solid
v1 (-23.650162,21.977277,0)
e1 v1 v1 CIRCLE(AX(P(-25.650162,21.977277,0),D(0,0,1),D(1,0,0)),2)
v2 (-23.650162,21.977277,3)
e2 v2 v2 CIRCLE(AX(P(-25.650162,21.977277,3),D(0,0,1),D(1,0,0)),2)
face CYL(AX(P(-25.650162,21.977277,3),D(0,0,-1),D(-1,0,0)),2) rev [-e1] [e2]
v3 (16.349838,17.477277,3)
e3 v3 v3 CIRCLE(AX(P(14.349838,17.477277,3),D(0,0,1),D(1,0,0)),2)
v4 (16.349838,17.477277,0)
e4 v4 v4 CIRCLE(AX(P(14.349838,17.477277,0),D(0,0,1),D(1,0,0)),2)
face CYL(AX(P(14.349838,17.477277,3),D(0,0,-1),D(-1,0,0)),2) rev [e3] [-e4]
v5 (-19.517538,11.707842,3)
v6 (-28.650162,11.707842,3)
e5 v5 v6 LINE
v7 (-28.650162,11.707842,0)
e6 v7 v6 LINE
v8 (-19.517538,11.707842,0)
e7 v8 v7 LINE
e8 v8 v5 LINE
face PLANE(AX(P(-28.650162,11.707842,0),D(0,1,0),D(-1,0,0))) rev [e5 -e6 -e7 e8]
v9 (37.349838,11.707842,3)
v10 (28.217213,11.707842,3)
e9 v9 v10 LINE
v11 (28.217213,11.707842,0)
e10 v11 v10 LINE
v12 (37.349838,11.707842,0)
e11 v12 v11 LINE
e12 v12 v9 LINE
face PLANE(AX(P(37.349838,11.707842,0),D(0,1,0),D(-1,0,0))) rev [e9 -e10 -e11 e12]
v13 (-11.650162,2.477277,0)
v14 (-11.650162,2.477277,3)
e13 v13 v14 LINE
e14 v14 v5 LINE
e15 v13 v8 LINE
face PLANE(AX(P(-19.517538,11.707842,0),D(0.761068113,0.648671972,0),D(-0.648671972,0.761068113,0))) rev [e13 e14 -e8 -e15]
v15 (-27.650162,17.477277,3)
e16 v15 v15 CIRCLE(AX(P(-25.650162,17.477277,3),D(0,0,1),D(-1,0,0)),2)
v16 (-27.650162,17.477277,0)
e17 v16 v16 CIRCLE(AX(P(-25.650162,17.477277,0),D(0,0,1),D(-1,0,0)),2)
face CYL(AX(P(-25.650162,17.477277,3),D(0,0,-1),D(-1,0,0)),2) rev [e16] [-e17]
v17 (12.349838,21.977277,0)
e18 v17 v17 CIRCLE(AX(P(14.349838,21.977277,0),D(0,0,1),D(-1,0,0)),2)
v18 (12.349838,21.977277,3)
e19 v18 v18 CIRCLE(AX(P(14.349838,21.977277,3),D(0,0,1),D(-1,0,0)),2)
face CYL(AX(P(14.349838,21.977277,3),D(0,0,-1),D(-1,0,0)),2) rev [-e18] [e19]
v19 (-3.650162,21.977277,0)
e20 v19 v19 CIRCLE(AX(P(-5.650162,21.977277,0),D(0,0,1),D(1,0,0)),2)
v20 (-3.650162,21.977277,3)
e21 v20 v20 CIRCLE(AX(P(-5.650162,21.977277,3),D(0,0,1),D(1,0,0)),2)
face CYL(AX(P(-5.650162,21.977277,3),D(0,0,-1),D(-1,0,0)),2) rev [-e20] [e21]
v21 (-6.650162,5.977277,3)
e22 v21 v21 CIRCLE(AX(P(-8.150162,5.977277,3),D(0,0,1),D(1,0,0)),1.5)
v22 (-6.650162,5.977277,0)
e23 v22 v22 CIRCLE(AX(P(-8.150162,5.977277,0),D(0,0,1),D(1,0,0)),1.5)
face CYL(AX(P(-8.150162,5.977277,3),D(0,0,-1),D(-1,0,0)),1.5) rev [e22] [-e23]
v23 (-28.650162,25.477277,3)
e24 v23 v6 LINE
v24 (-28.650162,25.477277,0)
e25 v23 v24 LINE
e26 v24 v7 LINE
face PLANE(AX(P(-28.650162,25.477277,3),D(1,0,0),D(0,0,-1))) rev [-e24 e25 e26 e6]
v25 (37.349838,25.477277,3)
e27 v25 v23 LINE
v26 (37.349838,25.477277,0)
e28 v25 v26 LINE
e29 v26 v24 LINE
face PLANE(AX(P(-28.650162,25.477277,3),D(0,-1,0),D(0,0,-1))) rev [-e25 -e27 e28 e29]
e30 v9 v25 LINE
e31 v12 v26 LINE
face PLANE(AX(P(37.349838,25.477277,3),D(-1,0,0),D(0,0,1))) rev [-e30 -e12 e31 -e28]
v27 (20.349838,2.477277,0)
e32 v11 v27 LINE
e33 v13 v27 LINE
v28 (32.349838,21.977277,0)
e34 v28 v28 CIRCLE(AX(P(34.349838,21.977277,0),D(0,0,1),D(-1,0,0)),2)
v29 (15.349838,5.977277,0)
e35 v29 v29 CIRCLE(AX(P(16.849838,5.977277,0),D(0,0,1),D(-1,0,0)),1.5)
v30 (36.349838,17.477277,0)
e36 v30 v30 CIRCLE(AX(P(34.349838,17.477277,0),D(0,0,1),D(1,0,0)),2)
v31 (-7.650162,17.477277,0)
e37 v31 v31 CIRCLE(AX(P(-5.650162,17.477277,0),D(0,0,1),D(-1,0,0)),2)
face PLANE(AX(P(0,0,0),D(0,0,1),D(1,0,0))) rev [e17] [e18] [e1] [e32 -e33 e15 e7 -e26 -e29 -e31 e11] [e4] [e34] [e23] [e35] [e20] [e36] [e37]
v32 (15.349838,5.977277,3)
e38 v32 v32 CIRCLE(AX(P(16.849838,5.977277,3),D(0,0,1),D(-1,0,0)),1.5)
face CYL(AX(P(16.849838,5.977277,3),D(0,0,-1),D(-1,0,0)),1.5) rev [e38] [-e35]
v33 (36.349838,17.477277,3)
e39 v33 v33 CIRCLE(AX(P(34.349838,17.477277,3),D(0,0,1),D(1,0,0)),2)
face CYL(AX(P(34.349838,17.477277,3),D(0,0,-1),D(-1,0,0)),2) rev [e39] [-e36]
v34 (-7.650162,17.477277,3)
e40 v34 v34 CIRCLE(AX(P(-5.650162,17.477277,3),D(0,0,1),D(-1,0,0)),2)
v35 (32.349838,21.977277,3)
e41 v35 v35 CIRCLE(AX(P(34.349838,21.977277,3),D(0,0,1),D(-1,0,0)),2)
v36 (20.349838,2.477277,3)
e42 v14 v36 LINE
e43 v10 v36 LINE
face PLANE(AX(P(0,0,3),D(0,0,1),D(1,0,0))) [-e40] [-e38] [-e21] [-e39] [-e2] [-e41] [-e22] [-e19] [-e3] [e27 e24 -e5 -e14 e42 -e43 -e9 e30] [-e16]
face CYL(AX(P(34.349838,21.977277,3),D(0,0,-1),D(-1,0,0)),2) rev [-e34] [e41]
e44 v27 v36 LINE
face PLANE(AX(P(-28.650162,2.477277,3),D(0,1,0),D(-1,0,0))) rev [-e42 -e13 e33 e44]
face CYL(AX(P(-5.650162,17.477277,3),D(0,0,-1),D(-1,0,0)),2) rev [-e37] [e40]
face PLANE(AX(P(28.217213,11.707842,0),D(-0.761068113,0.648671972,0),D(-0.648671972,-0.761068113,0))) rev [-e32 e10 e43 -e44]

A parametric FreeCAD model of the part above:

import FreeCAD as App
import Part
import Sketcher

V = App.Vector


def add_polygon(sketch, points):
    """Adds a closed chain of lines whose ends are joined by coincident constraints."""
    first, n = sketch.GeometryCount, len(points)
    for a, b in zip(points, points[1:] + points[:1]):
        sketch.addGeometry(Part.LineSegment(App.Vector(*a, 0), App.Vector(*b, 0)), False)
    for i in range(n):
        sketch.addConstraint(Sketcher.Constraint("Coincident", first + i, 2, first + (i + 1) % n, 1))

doc = App.newDocument("Part")
body = doc.addObject("PartDesign::Body", "Body")

# Sketch on XY plane
sketch1 = doc.addObject("Sketcher::SketchObject", "Sketch")
body.addObject(sketch1)
sketch1.AttachmentSupport = (doc.XY_Plane, [""])
sketch1.MapMode = "FlatFace"
add_polygon(sketch1, [(-28.650162, 25.477277), (-28.650162, 2.477277), (37.349838, 2.477277), (37.349838, 25.477277)])  # lines 0-3
sketch1.addGeometry(Part.Circle(V(-8.150162, 5.977277, 0), V(0, 0, 1), 1.5), False)  # 4
sketch1.addGeometry(Part.Circle(V(16.849838, 5.977277, 0), V(0, 0, 1), 1.5), False)  # 5
sketch1.addGeometry(Part.Circle(V(-25.650162, 17.477277, 0), V(0, 0, 1), 2), False)  # 6
sketch1.addGeometry(Part.Circle(V(-5.650162, 17.477277, 0), V(0, 0, 1), 2), False)  # 7
sketch1.addGeometry(Part.Circle(V(-25.650162, 21.977277, 0), V(0, 0, 1), 2), False)  # 8
sketch1.addGeometry(Part.Circle(V(-5.650162, 21.977277, 0), V(0, 0, 1), 2), False)  # 9
sketch1.addGeometry(Part.Circle(V(14.349838, 17.477277, 0), V(0, 0, 1), 2), False)  # 10
sketch1.addGeometry(Part.Circle(V(34.349838, 17.477277, 0), V(0, 0, 1), 2), False)  # 11
sketch1.addGeometry(Part.Circle(V(14.349838, 21.977277, 0), V(0, 0, 1), 2), False)  # 12
sketch1.addGeometry(Part.Circle(V(34.349838, 21.977277, 0), V(0, 0, 1), 2), False)  # 13
sketch1.addConstraint(Sketcher.Constraint("Vertical", 0))
sketch1.addConstraint(Sketcher.Constraint("Horizontal", 1))
sketch1.addConstraint(Sketcher.Constraint("Vertical", 2))
sketch1.addConstraint(Sketcher.Constraint("Horizontal", 3))
sketch1.addConstraint(Sketcher.Constraint("Equal", 4, 5))
sketch1.addConstraint(Sketcher.Constraint("Equal", 6, 7))
sketch1.addConstraint(Sketcher.Constraint("Equal", 7, 8))
sketch1.addConstraint(Sketcher.Constraint("Equal", 8, 9))
sketch1.addConstraint(Sketcher.Constraint("Equal", 9, 10))
sketch1.addConstraint(Sketcher.Constraint("Equal", 10, 11))
sketch1.addConstraint(Sketcher.Constraint("Equal", 11, 12))
sketch1.addConstraint(Sketcher.Constraint("Equal", 12, 13))
sketch1.addConstraint(Sketcher.Constraint("Horizontal", 4, 3, 5, 3))
sketch1.addConstraint(Sketcher.Constraint("Horizontal", 6, 3, 7, 3))
sketch1.addConstraint(Sketcher.Constraint("Horizontal", 8, 3, 9, 3))
sketch1.addConstraint(Sketcher.Constraint("Horizontal", 7, 3, 10, 3))
sketch1.addConstraint(Sketcher.Constraint("Horizontal", 10, 3, 11, 3))
sketch1.addConstraint(Sketcher.Constraint("Horizontal", 9, 3, 12, 3))
sketch1.addConstraint(Sketcher.Constraint("Horizontal", 12, 3, 13, 3))
sketch1.addConstraint(Sketcher.Constraint("Vertical", 6, 3, 8, 3))
sketch1.addConstraint(Sketcher.Constraint("Vertical", 7, 3, 9, 3))
sketch1.addConstraint(Sketcher.Constraint("Vertical", 10, 3, 12, 3))
sketch1.addConstraint(Sketcher.Constraint("Vertical", 11, 3, 13, 3))
sketch1.addConstraint(Sketcher.Constraint("Diameter", 4, 3.0))
sketch1.addConstraint(Sketcher.Constraint("Diameter", 6, 4.0))
sketch1.addConstraint(Sketcher.Constraint("DistanceX", 1, 1, 1, 2, 66.0))
sketch1.addConstraint(Sketcher.Constraint("DistanceY", 0, 2, 0, 1, 23.0))
sketch1.addConstraint(Sketcher.Constraint("DistanceX", 4, 3, 5, 3, 25.0))
sketch1.addConstraint(Sketcher.Constraint("DistanceX", 6, 3, 7, 3, 20.0))
sketch1.addConstraint(Sketcher.Constraint("DistanceY", 4, 3, 8, 3, 16.0))
sketch1.addConstraint(Sketcher.Constraint("DistanceX", 7, 3, 10, 3, 20.0))
sketch1.addConstraint(Sketcher.Constraint("DistanceX", 10, 3, 11, 3, 20.0))
sketch1.addConstraint(Sketcher.Constraint("DistanceX", 0, 2, 6, 3, 3.0))
sketch1.addConstraint(Sketcher.Constraint("DistanceY", 0, 2, 6, 3, 15.0))
sketch1.addConstraint(Sketcher.Constraint("DistanceX", 6, 3, 4, 3, 17.5))
sketch1.addConstraint(Sketcher.Constraint("DistanceY", 4, 3, 6, 3, 11.5))
sketch1.addConstraint(Sketcher.Constraint("DistanceX", 4, 3, -1, 1, 8.150162))
sketch1.addConstraint(Sketcher.Constraint("DistanceY", -1, 1, 4, 3, 5.977277))
pad1 = doc.addObject("PartDesign::Pad", "Pad")
body.addObject(pad1)
pad1.Profile = sketch1
pad1.Length = 3

# Sketch on XY plane
sketch2 = doc.addObject("Sketcher::SketchObject", "Sketch001")
body.addObject(sketch2)
sketch2.AttachmentSupport = (doc.XY_Plane, [""])
sketch2.MapMode = "FlatFace"
sketch2.AttachmentOffset = App.Placement(V(0, 0, 3), App.Rotation())
add_polygon(sketch2, [(-19.517538, 11.707842), (-28.650162, 11.707842), (-28.650162, 2.477277), (-11.650162, 2.477277)])  # lines 0-3
add_polygon(sketch2, [(20.349838, 2.477277), (37.349838, 2.477277), (37.349838, 11.707842), (28.217213, 11.707842)])  # lines 4-7
sketch2.addConstraint(Sketcher.Constraint("Horizontal", 0))
sketch2.addConstraint(Sketcher.Constraint("Vertical", 1))
sketch2.addConstraint(Sketcher.Constraint("Horizontal", 2))
sketch2.addConstraint(Sketcher.Constraint("Horizontal", 4))
sketch2.addConstraint(Sketcher.Constraint("Vertical", 5))
sketch2.addConstraint(Sketcher.Constraint("Horizontal", 6))
sketch2.addConstraint(Sketcher.Constraint("Horizontal", 2, 2, 4, 2))
sketch2.addConstraint(Sketcher.Constraint("Horizontal", 3, 2, 5, 2))
sketch2.addConstraint(Sketcher.Constraint("Equal", 2, 4))
sketch2.addConstraint(Sketcher.Constraint("Equal", 0, 6))
sketch2.addConstraint(Sketcher.Constraint("DistanceX", 2, 1, 2, 2, 17.0))
sketch2.addConstraint(Sketcher.Constraint("DistanceX", 2, 2, 4, 2, 49.0))
sketch2.addConstraint(Sketcher.Constraint("DistanceX", 0, 2, 0, 1, 9.132624))
sketch2.addConstraint(Sketcher.Constraint("DistanceY", 1, 2, 1, 1, 9.230565))
sketch2.addConstraint(Sketcher.Constraint("DistanceY", -1, 1, 0, 2, 11.707842))
sketch2.addConstraint(Sketcher.Constraint("DistanceX", 0, 2, -1, 1, 28.650162))
pocket1 = doc.addObject("PartDesign::Pocket", "Pocket")
body.addObject(pocket1)
pocket1.Profile = sketch2
pocket1.Type = "ThroughAll"

doc.recompute()
